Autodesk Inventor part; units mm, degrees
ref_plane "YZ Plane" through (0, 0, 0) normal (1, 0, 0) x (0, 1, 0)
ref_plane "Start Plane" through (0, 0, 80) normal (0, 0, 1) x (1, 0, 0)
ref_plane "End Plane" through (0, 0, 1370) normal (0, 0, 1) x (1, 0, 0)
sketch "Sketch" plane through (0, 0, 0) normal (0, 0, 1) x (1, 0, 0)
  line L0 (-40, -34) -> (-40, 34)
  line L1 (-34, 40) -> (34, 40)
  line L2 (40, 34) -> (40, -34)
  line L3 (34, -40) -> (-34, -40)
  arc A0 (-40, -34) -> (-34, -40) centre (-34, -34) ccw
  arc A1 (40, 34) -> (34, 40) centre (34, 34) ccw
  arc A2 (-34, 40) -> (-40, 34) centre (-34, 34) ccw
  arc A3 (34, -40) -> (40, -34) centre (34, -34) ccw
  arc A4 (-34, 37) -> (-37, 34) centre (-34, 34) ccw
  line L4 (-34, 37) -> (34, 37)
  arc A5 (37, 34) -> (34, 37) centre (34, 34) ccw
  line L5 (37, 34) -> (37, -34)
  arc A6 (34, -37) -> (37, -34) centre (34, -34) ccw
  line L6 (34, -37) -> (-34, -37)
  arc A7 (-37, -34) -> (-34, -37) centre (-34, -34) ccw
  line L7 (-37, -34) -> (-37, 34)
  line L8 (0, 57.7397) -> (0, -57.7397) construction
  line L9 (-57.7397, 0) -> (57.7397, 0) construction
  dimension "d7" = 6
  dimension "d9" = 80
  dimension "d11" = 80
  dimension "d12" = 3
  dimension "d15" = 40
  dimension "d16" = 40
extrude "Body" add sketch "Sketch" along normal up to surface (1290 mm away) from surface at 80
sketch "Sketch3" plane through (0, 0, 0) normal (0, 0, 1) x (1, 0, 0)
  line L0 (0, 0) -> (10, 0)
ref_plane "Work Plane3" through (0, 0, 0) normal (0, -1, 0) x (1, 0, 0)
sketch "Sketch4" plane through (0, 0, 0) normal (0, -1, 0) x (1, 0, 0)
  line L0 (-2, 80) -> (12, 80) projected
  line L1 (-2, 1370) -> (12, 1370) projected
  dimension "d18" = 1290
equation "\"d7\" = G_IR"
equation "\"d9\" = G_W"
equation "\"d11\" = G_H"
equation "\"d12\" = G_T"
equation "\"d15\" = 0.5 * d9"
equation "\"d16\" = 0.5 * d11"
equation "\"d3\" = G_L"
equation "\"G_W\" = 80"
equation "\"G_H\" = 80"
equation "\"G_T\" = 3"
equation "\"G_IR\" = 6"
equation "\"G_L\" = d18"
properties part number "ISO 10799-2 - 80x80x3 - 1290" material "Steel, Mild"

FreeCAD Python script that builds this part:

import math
import FreeCAD as App
import Part
import Sketcher
from FreeCAD import Vector
Q = App.Units.Quantity

doc = App.newDocument("Part")
params = doc.addObject("Spreadsheet::Sheet", "Params")
for row, (alias, value) in enumerate([
    ("sketch1_radius", "6 mm"),
    ("sketch1_radius2", "3 mm"),
    ("pad1_length", "1290 mm"),
], start=1):
    params.set(f"A{row}", alias)
    params.set(f"B{row}", "=" + value)
    params.setAlias(f"B{row}", alias)

body = doc.addObject("PartDesign::Body", "Body")

sketch1 = doc.addObject("Sketcher::SketchObject", "Sketch")
body.addObject(sketch1)
sketch1.AttachmentSupport = (doc.XY_Plane, [""])
sketch1.MapMode = "FlatFace"
sketch1.AttachmentOffset = App.Placement(Vector(0, 0, 80), App.Rotation())
sketch1.addGeometry([
    Part.LineSegment(Vector(-40, 34, 0), Vector(-40, -34, 0)),
    Part.ArcOfCircle(Part.Circle(Vector(-34, -34, 0), Vector(0, 0, 1), 6), math.radians(180), math.radians(270)),
    Part.LineSegment(Vector(-34, -40, 0), Vector(34, -40, 0)),
    Part.ArcOfCircle(Part.Circle(Vector(34, -34, 0), Vector(0, 0, 1), 6), math.radians(-90), math.radians(0)),
    Part.LineSegment(Vector(40, -34, 0), Vector(40, 34, 0)),
    Part.ArcOfCircle(Part.Circle(Vector(34, 34, 0), Vector(0, 0, 1), 6), math.radians(0), math.radians(90)),
    Part.LineSegment(Vector(34, 40, 0), Vector(-34, 40, 0)),
    Part.ArcOfCircle(Part.Circle(Vector(-34, 34, 0), Vector(0, 0, 1), 6), math.radians(90), math.radians(180)),
    Part.ArcOfCircle(Part.Circle(Vector(-34, 34, 0), Vector(0, 0, 1), 3), math.radians(90), math.radians(180)),
    Part.LineSegment(Vector(-34, 37, 0), Vector(34, 37, 0)),
    Part.ArcOfCircle(Part.Circle(Vector(34, 34, 0), Vector(0, 0, 1), 3), math.radians(0), math.radians(90)),
    Part.LineSegment(Vector(37, 34, 0), Vector(37, -34, 0)),
    Part.ArcOfCircle(Part.Circle(Vector(34, -34, 0), Vector(0, 0, 1), 3), math.radians(-90), math.radians(0)),
    Part.LineSegment(Vector(34, -37, 0), Vector(-34, -37, 0)),
    Part.ArcOfCircle(Part.Circle(Vector(-34, -34, 0), Vector(0, 0, 1), 3), math.radians(180), math.radians(270)),
    Part.LineSegment(Vector(-37, -34, 0), Vector(-37, 34, 0)),
], False)
sketch1.addConstraint([
    Sketcher.Constraint("Tangent", 0, 2, 1, 1),
    Sketcher.Constraint("Tangent", 1, 2, 2, 1),
    Sketcher.Constraint("Tangent", 2, 2, 3, 1),
    Sketcher.Constraint("Tangent", 3, 2, 4, 1),
    Sketcher.Constraint("Tangent", 4, 2, 5, 1),
    Sketcher.Constraint("Tangent", 5, 2, 6, 1),
    Sketcher.Constraint("Tangent", 6, 2, 7, 1),
    Sketcher.Constraint("Tangent", 7, 2, 0, 1),
    Sketcher.Constraint("Tangent", 8, 1, 9, 1),
    Sketcher.Constraint("Tangent", 9, 2, 10, 2),
    Sketcher.Constraint("Tangent", 10, 1, 11, 1),
    Sketcher.Constraint("Tangent", 11, 2, 12, 2),
    Sketcher.Constraint("Tangent", 12, 1, 13, 1),
    Sketcher.Constraint("Tangent", 13, 2, 14, 2),
    Sketcher.Constraint("Tangent", 14, 1, 15, 1),
    Sketcher.Constraint("Tangent", 15, 2, 8, 2),
    Sketcher.Constraint("Vertical", 0),
    Sketcher.Constraint("Horizontal", 2),
    Sketcher.Constraint("Vertical", 4),
    Sketcher.Constraint("Horizontal", 6),
    Sketcher.Constraint("Horizontal", 9),
    Sketcher.Constraint("Vertical", 11),
    Sketcher.Constraint("Horizontal", 13),
    Sketcher.Constraint("Vertical", 15),
    Sketcher.Constraint("Coincident", 8, 3, 7, 3),
    Sketcher.Constraint("Coincident", 10, 3, 5, 3),
    Sketcher.Constraint("Coincident", 12, 3, 3, 3),
    Sketcher.Constraint("Equal", 1, 3),
    Sketcher.Constraint("Equal", 3, 5),
    Sketcher.Constraint("Equal", 5, 7),
    Sketcher.Constraint("Equal", 12, 14),
    Sketcher.Constraint("Symmetric", 1, 3, 5, 3, -1, 1),
    Sketcher.Constraint("Equal", 13, 0),
    Sketcher.Constraint("Radius", 1, Q("6 mm")),
    Sketcher.Constraint("Radius", 8, Q("3 mm")),
    Sketcher.Constraint("DistanceX", 0, 2, -1, 1, Q("40 mm")),
])
sketch1.setExpression("Constraints[33]", "Params.sketch1_radius")
sketch1.setExpression("Constraints[34]", "Params.sketch1_radius2")
pad1 = doc.addObject("PartDesign::Pad", "Pad")
body.addObject(pad1)
pad1.Profile = sketch1
pad1.setExpression("Length", "Params.pad1_length")

doc.recompute()
